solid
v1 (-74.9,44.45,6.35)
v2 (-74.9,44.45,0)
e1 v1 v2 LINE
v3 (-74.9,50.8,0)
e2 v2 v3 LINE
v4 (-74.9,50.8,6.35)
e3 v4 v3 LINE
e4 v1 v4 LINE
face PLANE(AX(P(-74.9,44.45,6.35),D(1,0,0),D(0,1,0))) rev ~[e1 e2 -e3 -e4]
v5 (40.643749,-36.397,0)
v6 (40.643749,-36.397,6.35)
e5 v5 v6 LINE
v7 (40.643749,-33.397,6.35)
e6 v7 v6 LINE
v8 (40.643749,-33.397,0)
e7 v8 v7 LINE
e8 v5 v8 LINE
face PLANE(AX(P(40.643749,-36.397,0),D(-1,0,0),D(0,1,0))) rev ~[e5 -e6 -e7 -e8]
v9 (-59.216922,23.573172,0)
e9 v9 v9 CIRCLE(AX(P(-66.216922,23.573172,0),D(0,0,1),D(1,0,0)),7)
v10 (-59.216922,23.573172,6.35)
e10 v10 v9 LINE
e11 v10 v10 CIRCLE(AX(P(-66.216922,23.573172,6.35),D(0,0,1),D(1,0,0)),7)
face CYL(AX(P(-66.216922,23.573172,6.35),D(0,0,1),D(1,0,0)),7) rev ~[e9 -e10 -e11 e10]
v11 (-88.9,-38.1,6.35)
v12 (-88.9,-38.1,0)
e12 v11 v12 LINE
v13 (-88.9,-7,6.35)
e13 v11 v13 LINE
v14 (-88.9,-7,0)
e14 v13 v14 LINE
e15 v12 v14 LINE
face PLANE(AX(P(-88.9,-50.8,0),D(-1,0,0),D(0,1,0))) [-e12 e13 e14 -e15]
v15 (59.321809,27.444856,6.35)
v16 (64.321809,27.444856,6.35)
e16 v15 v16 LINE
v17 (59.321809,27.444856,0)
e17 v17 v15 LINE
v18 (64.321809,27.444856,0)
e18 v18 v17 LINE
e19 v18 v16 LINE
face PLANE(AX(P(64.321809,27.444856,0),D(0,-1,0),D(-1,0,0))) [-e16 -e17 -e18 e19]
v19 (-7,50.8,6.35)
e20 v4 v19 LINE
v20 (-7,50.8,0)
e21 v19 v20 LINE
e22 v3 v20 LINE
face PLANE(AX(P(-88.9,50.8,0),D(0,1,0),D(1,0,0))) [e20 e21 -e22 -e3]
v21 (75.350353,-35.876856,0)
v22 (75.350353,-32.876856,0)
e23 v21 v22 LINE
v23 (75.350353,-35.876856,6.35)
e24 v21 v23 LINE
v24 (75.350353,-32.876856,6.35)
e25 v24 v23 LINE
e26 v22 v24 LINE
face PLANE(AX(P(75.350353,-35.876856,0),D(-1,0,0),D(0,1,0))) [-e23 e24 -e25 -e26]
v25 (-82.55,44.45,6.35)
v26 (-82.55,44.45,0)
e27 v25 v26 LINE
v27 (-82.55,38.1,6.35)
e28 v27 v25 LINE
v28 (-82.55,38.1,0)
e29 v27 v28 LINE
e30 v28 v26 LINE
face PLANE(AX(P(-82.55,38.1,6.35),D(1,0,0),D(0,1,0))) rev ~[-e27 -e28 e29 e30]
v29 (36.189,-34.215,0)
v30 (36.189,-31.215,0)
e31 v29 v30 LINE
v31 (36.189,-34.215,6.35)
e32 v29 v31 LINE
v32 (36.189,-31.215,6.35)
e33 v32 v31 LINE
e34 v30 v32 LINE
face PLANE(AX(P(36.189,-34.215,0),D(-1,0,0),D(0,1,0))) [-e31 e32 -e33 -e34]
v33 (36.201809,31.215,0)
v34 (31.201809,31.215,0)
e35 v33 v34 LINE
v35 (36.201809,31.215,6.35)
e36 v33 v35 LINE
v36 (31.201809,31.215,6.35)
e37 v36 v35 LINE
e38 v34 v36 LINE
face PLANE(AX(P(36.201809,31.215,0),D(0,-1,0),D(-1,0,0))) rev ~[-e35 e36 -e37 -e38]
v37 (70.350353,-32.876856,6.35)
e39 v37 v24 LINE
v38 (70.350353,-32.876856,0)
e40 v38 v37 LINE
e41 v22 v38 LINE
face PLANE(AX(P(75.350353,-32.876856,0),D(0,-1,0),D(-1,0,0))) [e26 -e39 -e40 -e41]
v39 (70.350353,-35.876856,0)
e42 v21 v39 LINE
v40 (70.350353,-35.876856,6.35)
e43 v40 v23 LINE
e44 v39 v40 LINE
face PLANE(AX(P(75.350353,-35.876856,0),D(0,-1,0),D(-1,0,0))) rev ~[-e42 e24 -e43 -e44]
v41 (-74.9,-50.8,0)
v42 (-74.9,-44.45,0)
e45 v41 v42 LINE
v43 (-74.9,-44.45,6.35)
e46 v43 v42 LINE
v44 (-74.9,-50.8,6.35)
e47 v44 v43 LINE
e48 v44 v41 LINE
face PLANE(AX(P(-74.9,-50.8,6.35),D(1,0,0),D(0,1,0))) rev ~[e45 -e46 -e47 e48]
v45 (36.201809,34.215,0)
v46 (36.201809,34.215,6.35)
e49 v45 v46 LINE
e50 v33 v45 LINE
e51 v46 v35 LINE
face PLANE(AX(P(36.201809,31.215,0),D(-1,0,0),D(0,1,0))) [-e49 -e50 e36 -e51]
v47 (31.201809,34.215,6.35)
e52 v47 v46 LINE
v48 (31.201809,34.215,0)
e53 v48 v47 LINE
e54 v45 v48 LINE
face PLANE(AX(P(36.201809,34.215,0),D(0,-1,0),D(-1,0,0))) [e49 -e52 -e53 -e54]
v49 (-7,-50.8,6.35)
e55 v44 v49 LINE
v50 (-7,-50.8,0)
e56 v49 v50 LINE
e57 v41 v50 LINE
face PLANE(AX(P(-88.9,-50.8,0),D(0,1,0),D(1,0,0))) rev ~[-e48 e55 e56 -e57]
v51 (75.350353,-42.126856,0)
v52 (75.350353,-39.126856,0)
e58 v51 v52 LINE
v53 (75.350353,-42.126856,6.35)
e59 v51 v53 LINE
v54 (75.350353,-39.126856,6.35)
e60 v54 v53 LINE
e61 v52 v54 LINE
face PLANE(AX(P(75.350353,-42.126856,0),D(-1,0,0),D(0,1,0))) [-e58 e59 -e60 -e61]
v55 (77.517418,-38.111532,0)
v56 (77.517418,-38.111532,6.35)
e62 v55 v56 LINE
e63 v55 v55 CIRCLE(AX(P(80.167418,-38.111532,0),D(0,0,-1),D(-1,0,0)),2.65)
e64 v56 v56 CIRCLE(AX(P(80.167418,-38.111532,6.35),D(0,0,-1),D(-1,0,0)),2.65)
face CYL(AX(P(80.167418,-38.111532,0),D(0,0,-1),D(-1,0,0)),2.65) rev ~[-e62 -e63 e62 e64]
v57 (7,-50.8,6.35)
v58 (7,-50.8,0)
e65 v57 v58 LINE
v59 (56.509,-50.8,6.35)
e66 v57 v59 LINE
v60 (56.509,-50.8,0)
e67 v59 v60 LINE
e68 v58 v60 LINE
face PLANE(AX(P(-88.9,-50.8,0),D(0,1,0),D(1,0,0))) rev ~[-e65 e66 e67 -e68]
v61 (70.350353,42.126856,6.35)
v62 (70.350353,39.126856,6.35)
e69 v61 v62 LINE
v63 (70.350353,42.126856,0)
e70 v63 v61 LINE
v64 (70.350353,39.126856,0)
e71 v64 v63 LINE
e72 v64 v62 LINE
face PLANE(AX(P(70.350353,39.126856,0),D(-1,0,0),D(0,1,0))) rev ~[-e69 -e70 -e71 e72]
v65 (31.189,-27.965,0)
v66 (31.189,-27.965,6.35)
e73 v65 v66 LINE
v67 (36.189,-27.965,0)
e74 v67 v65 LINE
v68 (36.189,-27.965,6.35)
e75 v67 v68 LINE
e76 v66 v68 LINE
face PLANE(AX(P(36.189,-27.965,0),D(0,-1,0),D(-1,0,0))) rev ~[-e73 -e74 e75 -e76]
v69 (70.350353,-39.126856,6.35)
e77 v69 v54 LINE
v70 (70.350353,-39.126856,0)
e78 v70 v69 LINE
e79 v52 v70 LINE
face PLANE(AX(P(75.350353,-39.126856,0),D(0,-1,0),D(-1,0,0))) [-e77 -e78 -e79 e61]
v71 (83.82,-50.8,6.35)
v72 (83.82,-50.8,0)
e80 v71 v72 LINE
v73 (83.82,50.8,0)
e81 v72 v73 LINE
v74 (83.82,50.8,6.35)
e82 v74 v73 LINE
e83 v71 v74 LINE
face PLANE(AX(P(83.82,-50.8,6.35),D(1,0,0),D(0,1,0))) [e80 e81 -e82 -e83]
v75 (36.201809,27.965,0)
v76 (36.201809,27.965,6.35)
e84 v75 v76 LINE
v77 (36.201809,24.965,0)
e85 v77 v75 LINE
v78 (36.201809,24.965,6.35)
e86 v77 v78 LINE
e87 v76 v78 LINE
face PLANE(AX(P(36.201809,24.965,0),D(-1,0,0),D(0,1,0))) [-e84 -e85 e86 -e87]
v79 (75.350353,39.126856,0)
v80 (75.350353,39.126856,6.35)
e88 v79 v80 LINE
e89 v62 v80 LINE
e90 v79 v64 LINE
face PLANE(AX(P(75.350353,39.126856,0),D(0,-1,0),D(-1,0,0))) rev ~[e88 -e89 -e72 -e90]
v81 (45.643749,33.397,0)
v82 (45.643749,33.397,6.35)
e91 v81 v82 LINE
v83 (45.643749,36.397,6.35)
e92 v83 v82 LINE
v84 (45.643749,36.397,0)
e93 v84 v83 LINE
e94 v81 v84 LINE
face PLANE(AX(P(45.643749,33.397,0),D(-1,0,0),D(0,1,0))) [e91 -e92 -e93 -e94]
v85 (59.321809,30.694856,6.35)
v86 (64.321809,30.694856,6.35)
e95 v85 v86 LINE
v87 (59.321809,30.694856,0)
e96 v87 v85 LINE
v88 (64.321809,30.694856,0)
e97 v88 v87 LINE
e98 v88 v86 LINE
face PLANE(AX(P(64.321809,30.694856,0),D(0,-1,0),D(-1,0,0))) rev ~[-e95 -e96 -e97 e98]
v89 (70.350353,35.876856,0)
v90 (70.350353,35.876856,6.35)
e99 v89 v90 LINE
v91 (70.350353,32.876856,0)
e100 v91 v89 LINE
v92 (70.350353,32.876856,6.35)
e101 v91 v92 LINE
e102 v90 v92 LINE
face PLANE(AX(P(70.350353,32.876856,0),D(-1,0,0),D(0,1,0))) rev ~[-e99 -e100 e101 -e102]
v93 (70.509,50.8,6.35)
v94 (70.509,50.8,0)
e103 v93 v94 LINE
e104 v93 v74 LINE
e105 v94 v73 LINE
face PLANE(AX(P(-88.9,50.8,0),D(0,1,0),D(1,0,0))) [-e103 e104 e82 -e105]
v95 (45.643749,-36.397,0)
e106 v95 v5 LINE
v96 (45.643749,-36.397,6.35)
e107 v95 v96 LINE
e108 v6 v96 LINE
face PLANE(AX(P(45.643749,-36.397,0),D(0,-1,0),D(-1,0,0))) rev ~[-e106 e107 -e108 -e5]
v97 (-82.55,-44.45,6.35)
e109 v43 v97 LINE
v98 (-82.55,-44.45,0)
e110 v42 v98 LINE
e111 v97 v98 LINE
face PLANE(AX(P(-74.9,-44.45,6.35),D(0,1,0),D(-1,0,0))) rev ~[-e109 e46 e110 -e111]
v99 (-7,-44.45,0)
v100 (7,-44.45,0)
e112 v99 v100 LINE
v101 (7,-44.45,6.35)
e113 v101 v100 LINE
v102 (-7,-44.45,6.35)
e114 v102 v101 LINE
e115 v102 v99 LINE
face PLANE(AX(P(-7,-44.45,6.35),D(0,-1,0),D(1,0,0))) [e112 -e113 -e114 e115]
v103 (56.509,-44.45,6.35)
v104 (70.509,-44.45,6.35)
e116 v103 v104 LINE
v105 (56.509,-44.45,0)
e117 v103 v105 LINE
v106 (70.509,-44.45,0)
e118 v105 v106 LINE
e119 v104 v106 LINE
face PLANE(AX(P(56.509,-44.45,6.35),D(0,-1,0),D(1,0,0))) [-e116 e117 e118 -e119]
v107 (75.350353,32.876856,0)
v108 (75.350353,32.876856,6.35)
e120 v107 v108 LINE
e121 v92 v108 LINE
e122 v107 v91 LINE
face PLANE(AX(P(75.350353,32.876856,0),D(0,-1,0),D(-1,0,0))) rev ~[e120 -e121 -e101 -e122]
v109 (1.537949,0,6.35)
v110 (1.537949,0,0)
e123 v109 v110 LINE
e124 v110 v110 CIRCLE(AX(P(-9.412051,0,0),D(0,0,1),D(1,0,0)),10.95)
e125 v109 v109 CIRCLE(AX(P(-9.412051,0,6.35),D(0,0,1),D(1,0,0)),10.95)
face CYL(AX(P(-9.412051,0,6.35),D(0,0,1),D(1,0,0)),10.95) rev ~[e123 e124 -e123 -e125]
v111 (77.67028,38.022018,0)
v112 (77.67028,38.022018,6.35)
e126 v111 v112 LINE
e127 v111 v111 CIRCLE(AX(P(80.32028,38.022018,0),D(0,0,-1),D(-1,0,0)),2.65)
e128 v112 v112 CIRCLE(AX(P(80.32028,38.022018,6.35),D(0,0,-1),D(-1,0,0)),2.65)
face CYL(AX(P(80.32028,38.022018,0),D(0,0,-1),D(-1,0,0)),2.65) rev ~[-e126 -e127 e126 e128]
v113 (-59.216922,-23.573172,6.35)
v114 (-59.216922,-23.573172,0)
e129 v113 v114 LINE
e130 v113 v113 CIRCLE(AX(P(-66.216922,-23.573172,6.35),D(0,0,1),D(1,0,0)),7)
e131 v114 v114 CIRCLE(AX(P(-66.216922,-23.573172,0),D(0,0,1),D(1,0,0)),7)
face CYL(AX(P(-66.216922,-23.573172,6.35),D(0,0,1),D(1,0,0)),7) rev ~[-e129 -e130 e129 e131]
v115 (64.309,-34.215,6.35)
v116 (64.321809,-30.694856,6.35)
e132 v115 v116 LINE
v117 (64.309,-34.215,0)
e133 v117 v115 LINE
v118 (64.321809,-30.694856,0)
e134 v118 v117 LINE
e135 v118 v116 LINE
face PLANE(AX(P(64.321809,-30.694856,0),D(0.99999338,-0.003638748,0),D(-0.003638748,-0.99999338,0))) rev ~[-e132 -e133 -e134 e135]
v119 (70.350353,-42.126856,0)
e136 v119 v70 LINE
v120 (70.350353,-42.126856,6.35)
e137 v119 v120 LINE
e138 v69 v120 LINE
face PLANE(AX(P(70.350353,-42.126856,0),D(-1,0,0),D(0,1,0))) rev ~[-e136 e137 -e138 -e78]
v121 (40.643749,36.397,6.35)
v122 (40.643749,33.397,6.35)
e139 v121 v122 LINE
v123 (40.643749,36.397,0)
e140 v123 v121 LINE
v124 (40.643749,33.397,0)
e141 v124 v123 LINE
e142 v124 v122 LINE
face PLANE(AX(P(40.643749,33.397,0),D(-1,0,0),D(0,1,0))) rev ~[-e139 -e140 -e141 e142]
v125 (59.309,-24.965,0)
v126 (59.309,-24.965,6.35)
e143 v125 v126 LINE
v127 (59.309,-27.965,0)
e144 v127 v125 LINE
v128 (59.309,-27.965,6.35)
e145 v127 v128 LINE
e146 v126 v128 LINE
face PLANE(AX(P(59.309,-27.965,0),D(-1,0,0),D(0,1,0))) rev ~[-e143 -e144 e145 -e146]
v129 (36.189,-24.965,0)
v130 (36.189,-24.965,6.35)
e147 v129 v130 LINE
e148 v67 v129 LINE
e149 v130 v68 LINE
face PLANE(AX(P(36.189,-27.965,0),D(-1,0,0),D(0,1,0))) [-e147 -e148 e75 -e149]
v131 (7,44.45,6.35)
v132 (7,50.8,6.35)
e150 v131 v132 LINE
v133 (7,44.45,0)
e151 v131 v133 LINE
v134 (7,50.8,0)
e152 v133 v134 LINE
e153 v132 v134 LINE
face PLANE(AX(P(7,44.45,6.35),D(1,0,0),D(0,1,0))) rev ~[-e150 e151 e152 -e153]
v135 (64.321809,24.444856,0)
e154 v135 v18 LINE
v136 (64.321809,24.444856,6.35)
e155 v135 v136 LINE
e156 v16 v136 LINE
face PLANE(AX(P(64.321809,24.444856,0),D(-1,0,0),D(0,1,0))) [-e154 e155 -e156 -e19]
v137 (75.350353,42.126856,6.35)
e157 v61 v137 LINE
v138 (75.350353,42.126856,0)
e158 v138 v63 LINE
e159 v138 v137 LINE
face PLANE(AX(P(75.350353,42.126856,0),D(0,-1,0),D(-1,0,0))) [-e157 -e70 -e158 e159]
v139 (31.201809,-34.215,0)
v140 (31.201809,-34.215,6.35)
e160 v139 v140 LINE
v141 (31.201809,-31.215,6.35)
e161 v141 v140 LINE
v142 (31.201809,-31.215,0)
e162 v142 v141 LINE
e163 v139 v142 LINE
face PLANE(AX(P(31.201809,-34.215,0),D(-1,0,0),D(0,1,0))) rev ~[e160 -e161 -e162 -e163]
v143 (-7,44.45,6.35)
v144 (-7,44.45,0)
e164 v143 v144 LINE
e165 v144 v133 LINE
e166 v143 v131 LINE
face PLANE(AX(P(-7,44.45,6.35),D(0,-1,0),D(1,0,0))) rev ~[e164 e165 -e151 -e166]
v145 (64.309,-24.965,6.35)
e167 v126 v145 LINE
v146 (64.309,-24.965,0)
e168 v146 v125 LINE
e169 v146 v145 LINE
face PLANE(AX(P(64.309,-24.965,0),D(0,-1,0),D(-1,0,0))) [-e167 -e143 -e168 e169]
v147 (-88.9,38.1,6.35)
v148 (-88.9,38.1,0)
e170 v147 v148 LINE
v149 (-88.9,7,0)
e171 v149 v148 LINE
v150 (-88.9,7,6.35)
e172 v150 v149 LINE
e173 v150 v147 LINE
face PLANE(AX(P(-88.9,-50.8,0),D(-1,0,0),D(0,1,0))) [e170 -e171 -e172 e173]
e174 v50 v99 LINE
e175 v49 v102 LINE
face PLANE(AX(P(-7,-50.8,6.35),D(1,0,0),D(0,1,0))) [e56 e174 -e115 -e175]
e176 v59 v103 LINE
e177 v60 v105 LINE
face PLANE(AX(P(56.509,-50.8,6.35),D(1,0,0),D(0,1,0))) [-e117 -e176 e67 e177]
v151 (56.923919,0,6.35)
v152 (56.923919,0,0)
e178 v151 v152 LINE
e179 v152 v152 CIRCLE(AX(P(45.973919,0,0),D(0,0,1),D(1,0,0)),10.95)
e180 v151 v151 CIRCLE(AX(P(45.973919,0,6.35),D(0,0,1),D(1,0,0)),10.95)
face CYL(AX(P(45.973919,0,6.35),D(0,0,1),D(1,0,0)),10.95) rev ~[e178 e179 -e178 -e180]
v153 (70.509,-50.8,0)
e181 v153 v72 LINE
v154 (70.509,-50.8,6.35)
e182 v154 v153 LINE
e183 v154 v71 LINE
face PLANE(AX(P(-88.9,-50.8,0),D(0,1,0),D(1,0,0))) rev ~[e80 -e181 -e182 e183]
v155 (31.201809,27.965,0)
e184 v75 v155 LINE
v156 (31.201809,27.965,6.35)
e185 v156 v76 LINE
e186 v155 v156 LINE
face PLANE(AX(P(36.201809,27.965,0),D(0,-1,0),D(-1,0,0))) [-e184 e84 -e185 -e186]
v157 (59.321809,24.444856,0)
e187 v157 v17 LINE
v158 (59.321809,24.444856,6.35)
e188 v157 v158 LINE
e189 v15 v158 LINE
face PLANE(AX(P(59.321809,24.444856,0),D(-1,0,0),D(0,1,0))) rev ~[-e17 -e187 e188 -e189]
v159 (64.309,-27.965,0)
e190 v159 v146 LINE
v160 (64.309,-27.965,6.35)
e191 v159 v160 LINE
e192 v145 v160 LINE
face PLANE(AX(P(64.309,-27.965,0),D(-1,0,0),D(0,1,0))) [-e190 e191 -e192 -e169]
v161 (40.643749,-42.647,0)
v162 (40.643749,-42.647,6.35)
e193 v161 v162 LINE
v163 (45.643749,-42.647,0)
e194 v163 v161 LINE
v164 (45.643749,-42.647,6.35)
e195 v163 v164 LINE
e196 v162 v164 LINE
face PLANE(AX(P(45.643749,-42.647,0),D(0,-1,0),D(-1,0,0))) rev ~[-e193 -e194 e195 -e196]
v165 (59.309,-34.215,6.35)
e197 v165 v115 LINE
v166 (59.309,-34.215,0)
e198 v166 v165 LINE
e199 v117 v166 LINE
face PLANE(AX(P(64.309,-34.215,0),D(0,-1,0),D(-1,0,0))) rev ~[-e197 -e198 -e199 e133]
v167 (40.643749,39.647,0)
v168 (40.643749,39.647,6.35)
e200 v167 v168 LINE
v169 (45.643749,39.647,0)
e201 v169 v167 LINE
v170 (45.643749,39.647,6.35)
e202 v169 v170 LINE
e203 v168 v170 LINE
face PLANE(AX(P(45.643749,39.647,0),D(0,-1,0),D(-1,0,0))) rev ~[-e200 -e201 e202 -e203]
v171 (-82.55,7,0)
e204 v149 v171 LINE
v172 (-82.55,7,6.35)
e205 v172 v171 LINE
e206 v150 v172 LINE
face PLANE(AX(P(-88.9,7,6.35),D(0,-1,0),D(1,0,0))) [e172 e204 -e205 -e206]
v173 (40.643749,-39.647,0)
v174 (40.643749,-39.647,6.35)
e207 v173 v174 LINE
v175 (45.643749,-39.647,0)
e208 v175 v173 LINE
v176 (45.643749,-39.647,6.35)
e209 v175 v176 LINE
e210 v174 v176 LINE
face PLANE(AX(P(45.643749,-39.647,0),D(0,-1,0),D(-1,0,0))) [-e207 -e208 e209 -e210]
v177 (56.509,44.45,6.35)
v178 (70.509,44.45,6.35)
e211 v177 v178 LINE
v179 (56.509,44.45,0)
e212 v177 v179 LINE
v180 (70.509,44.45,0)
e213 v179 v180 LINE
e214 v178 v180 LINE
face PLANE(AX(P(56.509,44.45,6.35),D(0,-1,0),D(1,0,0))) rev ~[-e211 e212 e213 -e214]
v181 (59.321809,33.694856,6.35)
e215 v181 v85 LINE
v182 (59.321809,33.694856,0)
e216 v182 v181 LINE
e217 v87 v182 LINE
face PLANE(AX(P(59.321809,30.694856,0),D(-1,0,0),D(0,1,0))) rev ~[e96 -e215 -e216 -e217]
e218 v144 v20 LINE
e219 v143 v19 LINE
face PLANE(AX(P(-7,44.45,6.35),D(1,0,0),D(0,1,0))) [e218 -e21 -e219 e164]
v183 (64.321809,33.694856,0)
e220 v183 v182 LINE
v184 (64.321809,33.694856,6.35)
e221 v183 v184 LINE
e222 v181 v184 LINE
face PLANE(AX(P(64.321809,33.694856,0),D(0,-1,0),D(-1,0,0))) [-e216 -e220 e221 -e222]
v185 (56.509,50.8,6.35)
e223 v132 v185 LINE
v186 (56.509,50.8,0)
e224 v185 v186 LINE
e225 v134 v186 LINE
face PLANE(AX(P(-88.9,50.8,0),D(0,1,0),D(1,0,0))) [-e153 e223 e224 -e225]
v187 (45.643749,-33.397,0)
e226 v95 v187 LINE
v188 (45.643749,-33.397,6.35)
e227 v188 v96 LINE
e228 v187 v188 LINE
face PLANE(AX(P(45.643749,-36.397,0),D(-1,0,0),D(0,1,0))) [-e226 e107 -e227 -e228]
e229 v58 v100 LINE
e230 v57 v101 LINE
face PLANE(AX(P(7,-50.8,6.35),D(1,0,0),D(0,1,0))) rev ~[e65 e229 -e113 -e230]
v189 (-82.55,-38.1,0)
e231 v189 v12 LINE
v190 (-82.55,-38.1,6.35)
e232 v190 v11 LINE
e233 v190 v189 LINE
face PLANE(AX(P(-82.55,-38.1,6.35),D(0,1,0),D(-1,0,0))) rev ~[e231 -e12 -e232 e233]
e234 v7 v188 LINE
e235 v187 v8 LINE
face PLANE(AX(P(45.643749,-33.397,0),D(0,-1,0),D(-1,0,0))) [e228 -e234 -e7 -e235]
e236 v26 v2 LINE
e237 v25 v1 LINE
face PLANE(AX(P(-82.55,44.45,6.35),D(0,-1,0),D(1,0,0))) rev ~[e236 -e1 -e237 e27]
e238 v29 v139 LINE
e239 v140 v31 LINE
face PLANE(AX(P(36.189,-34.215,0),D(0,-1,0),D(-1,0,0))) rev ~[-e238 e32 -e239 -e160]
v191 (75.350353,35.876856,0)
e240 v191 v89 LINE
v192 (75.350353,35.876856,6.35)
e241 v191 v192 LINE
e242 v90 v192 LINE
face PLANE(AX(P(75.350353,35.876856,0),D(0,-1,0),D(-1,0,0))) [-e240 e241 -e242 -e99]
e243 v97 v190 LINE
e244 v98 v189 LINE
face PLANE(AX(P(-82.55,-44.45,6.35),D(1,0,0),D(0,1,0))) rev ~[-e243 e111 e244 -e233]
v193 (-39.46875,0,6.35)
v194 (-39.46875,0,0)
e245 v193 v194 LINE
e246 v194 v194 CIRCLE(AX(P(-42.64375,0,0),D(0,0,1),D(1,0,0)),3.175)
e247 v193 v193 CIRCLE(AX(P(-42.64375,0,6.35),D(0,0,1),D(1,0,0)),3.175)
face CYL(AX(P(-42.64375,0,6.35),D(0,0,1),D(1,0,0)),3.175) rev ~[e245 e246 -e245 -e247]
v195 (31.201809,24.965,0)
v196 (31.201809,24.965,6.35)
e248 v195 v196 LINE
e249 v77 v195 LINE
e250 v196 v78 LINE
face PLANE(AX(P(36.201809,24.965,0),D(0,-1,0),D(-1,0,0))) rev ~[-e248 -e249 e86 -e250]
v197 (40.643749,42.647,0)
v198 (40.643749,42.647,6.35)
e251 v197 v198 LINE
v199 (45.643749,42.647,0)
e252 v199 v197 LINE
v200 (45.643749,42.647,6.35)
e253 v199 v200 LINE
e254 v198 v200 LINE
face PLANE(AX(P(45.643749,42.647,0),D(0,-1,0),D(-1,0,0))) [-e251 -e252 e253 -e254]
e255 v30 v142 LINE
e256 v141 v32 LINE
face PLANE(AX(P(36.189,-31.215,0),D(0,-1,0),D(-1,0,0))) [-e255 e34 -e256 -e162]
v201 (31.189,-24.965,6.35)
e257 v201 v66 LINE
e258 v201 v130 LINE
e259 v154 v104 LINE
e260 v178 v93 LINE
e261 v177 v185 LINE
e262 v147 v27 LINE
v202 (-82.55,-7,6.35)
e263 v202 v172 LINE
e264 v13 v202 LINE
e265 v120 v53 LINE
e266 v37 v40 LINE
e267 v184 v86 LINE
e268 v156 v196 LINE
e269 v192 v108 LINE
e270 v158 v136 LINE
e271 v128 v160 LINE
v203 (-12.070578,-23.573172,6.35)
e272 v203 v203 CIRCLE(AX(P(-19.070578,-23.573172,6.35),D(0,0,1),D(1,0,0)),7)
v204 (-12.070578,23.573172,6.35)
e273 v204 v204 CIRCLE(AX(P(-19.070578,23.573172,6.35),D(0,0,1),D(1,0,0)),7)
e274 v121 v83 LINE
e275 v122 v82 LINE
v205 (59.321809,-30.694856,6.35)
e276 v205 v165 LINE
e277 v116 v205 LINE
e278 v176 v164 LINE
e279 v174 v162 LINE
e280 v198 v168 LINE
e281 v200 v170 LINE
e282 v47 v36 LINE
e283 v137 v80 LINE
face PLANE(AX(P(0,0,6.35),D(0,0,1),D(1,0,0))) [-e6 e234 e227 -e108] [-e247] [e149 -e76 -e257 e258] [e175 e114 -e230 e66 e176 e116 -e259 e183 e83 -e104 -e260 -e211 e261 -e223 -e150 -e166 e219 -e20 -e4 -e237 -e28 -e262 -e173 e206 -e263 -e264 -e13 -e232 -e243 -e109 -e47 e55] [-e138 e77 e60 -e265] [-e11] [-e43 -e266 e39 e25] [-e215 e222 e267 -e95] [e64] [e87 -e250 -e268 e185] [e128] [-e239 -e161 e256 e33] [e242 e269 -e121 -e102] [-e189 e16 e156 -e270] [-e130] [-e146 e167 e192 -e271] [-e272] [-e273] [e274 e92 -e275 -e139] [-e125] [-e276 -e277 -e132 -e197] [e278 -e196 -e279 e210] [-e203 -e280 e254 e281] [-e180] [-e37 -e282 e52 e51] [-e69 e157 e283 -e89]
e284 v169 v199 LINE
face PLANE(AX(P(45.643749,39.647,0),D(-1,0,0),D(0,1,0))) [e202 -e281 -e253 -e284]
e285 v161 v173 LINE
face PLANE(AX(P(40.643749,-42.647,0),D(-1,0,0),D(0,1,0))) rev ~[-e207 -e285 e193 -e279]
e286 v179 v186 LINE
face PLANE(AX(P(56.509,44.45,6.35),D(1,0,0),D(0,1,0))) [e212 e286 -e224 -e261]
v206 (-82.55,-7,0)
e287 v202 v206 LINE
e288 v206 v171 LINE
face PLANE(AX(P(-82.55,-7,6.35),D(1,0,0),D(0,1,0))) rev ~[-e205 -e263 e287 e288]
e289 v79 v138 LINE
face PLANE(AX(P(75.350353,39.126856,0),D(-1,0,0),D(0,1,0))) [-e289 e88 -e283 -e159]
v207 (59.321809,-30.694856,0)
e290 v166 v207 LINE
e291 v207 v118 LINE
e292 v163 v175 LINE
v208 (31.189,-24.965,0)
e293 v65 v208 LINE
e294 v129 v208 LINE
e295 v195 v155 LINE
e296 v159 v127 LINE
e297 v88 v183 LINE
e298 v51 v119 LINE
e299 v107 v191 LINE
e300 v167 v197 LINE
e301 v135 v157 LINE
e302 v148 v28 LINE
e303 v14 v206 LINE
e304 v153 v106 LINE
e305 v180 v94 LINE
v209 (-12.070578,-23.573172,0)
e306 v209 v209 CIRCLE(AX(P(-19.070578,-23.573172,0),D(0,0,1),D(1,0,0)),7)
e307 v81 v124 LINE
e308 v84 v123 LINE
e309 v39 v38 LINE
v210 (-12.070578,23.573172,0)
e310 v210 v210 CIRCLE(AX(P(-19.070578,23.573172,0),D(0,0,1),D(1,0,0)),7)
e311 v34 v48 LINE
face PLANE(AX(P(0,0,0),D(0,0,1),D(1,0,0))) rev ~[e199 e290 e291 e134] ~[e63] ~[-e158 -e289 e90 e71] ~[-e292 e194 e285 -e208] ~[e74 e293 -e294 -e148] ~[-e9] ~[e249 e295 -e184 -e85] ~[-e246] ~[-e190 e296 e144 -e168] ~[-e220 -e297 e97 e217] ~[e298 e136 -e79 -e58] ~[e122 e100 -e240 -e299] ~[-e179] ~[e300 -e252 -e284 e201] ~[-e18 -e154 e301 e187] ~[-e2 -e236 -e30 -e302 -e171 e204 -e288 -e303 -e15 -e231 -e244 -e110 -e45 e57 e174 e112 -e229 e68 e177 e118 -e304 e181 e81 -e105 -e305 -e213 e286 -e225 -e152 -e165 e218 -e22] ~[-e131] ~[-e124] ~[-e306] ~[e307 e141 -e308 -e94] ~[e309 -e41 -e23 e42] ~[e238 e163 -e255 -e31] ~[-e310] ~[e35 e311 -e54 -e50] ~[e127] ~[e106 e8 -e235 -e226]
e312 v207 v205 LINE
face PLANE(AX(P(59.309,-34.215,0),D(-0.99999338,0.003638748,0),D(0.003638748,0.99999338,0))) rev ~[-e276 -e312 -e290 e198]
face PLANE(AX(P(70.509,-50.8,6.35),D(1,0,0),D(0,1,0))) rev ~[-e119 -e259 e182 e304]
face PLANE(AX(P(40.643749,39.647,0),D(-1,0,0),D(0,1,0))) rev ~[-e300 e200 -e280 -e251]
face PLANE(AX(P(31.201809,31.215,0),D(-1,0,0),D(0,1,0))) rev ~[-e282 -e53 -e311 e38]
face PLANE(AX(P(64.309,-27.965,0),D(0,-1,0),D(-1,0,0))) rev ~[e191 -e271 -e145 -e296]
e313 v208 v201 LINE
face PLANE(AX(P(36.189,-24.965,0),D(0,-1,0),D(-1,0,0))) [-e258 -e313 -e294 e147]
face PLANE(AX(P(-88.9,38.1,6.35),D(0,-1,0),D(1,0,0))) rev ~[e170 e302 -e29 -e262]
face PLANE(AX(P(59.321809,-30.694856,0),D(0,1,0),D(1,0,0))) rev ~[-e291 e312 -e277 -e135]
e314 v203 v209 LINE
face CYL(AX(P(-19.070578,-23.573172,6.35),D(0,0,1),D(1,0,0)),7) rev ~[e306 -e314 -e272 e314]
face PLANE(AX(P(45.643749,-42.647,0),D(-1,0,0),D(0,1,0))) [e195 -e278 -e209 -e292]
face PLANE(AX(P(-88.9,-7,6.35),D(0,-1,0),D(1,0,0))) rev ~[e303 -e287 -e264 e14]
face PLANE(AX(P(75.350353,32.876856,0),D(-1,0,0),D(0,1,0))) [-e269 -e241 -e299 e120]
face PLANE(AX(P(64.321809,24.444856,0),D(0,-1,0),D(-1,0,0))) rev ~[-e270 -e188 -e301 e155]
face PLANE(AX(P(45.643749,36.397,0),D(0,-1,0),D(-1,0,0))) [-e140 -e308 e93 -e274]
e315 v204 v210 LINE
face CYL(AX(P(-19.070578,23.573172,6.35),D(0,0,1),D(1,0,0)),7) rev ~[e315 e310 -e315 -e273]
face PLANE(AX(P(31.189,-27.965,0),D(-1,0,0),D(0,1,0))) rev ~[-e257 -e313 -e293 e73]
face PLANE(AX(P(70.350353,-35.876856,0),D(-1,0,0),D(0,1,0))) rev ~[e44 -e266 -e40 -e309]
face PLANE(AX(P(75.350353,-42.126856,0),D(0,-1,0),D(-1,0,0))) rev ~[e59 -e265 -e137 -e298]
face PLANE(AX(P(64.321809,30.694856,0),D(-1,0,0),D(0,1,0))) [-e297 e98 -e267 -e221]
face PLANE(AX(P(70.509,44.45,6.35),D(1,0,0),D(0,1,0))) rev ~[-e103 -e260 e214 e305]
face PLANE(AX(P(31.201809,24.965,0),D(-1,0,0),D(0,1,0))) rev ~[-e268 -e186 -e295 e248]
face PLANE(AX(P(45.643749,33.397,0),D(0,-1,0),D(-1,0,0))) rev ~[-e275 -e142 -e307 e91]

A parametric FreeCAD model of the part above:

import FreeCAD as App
import Part
import Sketcher

doc = App.newDocument("Part")
params = doc.addObject("Spreadsheet::Sheet", "Params")
for row, (alias, value) in enumerate([
    ("sketch1_width", "177.8 mm"),
    ("sketch1_height", "101.6 mm"),
    ("pad1_length", "6.35 mm"),
    ("sketch2_diameter", "14 mm"),
    ("sketch2_diameter2", "21.9 mm"),
    ("sketch2_diameter3", "6.35 mm"),
    ("sketch3_width", "14 mm"),
    ("sketch3_height", "12.7 mm"),
    ("sketch3_height2", "101.6 mm"),
    ("sketch3_width2", "5.08 mm"),
    ("sketch4_diameter", "5.3 mm"),
    ("sketch4_width", "5 mm"),
    ("sketch4_height", "3 mm"),
], start=1):
    params.set(f"A{row}", alias)
    params.set(f"B{row}", "=" + value)
    params.setAlias(f"B{row}", alias)

body = doc.addObject("PartDesign::Body", "Body")

sketch1 = body.newObject("Sketcher::SketchObject", "Sketch")
sketch1.AttachmentSupport = (doc.getObject("XY_Plane"), [""])
sketch1.MapMode = "FlatFace"
sketch1.addGeometry([
    Part.LineSegment(App.Vector(-89, 51, 0), App.Vector(-89, -51, 0)),
    Part.LineSegment(App.Vector(-89, -51, 0), App.Vector(89, -51, 0)),
    Part.LineSegment(App.Vector(89, -51, 0), App.Vector(89, 51, 0)),
    Part.LineSegment(App.Vector(89, 51, 0), App.Vector(-89, 51, 0)),
], False)
sketch1.addConstraint([
    Sketcher.Constraint("Coincident", 0, 2, 1, 1),
    Sketcher.Constraint("Coincident", 1, 2, 2, 1),
    Sketcher.Constraint("Coincident", 2, 2, 3, 1),
    Sketcher.Constraint("Coincident", 3, 2, 0, 1),
    Sketcher.Constraint("Vertical", 0),
    Sketcher.Constraint("Horizontal", 1),
    Sketcher.Constraint("Vertical", 2),
    Sketcher.Constraint("Horizontal", 3),
    Sketcher.Constraint("Symmetric", 0, 2, 2, 2, -1, 1),
    Sketcher.Constraint("DistanceX", 1, 1, 1, 2, 177.8),
    Sketcher.Constraint("DistanceY", 0, 2, 0, 1, 101.6),
])
sketch1.setExpression("Constraints[9]", "Params.sketch1_width")
sketch1.setExpression("Constraints[10]", "Params.sketch1_height")
pad1 = body.newObject("PartDesign::Pad", "Pad")
pad1.Profile = sketch1
pad1.setExpression("Length", "Params.pad1_length")

sketch2 = body.newObject("Sketcher::SketchObject", "Sketch001")
sketch2.AttachmentSupport = (doc.getObject("XY_Plane"), [""])
sketch2.MapMode = "FlatFace"
sketch2.AttachmentOffset = App.Placement(App.Vector(0, 0, 6.35), App.Rotation())
sketch2.addGeometry([
    Part.Circle(App.Vector(-9.4, 0, 0), App.Vector(0, 0, 1), 10.9),
    Part.Circle(App.Vector(-42.6, 0, 0), App.Vector(0, 0, 1), 3.2),
    Part.Circle(App.Vector(-66.2, 23.6, 0), App.Vector(0, 0, 1), 7),
    Part.Circle(App.Vector(-19.1, 23.6, 0), App.Vector(0, 0, 1), 7),
    Part.Circle(App.Vector(-66.2, -23.6, 0), App.Vector(0, 0, 1), 7),
    Part.Circle(App.Vector(-19.1, -23.6, 0), App.Vector(0, 0, 1), 7),
    Part.Circle(App.Vector(46, 0, 0), App.Vector(0, 0, 1), 10.9),
], False)
sketch2.addConstraint([
    Sketcher.Constraint("Equal", 2, 3),
    Sketcher.Constraint("Equal", 3, 4),
    Sketcher.Constraint("Equal", 4, 5),
    Sketcher.Constraint("Equal", 0, 6),
    Sketcher.Constraint("Symmetric", 2, 3, 4, 3, -1),
    Sketcher.Constraint("Symmetric", 3, 3, 5, 3, -1),
    Sketcher.Constraint("PointOnObject", 0, 3, -1),
    Sketcher.Constraint("PointOnObject", 1, 3, -1),
    Sketcher.Constraint("PointOnObject", 6, 3, -1),
    Sketcher.Constraint("Horizontal", 2, 3, 3, 3),
    Sketcher.Constraint("Diameter", 2, 14.0),
    Sketcher.Constraint("Diameter", 0, 21.9),
    Sketcher.Constraint("Diameter", 1, 6.35),
    Sketcher.Constraint("DistanceX", 1, 3, 0, 3, 33.231699),
    Sketcher.Constraint("DistanceX", 0, 3, -1, 1, 9.412051),
    Sketcher.Constraint("DistanceX", -1, 1, 6, 3, 45.973919),
    Sketcher.Constraint("DistanceX", 2, 3, 0, 3, 56.804872),
    Sketcher.Constraint("DistanceY", -1, 1, 2, 3, 23.573172),
    Sketcher.Constraint("DistanceX", 3, 3, -1, 1, 19.070578),
])
sketch2.setExpression("Constraints[10]", "Params.sketch2_diameter")
sketch2.setExpression("Constraints[11]", "Params.sketch2_diameter2")
sketch2.setExpression("Constraints[12]", "Params.sketch2_diameter3")
pocket1 = body.newObject("PartDesign::Pocket", "Pocket")
pocket1.Profile = sketch2
pocket1.Type = "ThroughAll"

sketch3 = body.newObject("Sketcher::SketchObject", "Sketch002")
sketch3.AttachmentSupport = (doc.getObject("XY_Plane"), [""])
sketch3.MapMode = "FlatFace"
sketch3.AttachmentOffset = App.Placement(App.Vector(0, 0, 6.35), App.Rotation())
sketch3.addGeometry([
    Part.LineSegment(App.Vector(57, -44, 0), App.Vector(57, -51, 0)),
    Part.LineSegment(App.Vector(57, -51, 0), App.Vector(71, -51, 0)),
    Part.LineSegment(App.Vector(71, -51, 0), App.Vector(71, -44, 0)),
    Part.LineSegment(App.Vector(71, -44, 0), App.Vector(57, -44, 0)),
    Part.LineSegment(App.Vector(57, 51, 0), App.Vector(57, 44, 0)),
    Part.LineSegment(App.Vector(57, 44, 0), App.Vector(71, 44, 0)),
    Part.LineSegment(App.Vector(71, 44, 0), App.Vector(71, 51, 0)),
    Part.LineSegment(App.Vector(71, 51, 0), App.Vector(57, 51, 0)),
    Part.LineSegment(App.Vector(-7, 51, 0), App.Vector(-7, 44, 0)),
    Part.LineSegment(App.Vector(-7, 44, 0), App.Vector(7, 44, 0)),
    Part.LineSegment(App.Vector(7, 44, 0), App.Vector(7, 51, 0)),
    Part.LineSegment(App.Vector(7, 51, 0), App.Vector(-7, 51, 0)),
    Part.LineSegment(App.Vector(-7, -44, 0), App.Vector(-7, -51, 0)),
    Part.LineSegment(App.Vector(-7, -51, 0), App.Vector(7, -51, 0)),
    Part.LineSegment(App.Vector(7, -51, 0), App.Vector(7, -44, 0)),
    Part.LineSegment(App.Vector(7, -44, 0), App.Vector(-7, -44, 0)),
    Part.LineSegment(App.Vector(-83, -38, 0), App.Vector(-89, -38, 0)),
    Part.LineSegment(App.Vector(-89, -38, 0), App.Vector(-89, -51, 0)),
    Part.LineSegment(App.Vector(-89, -51, 0), App.Vector(-75, -51, 0)),
    Part.LineSegment(App.Vector(-75, -51, 0), App.Vector(-75, -44, 0)),
    Part.LineSegment(App.Vector(-75, -44, 0), App.Vector(-83, -44, 0)),
    Part.LineSegment(App.Vector(-83, -44, 0), App.Vector(-83, -38, 0)),
    Part.LineSegment(App.Vector(-89, 7, 0), App.Vector(-89, -7, 0)),
    Part.LineSegment(App.Vector(-89, -7, 0), App.Vector(-83, -7, 0)),
    Part.LineSegment(App.Vector(-83, -7, 0), App.Vector(-83, 7, 0)),
    Part.LineSegment(App.Vector(-83, 7, 0), App.Vector(-89, 7, 0)),
    Part.LineSegment(App.Vector(-89, 38, 0), App.Vector(-83, 38, 0)),
    Part.LineSegment(App.Vector(-83, 38, 0), App.Vector(-83, 44, 0)),
    Part.LineSegment(App.Vector(-83, 44, 0), App.Vector(-75, 44, 0)),
    Part.LineSegment(App.Vector(-75, 44, 0), App.Vector(-75, 51, 0)),
    Part.LineSegment(App.Vector(-75, 51, 0), App.Vector(-89, 51, 0)),
    Part.LineSegment(App.Vector(-89, 51, 0), App.Vector(-89, 38, 0)),
    Part.LineSegment(App.Vector(84, 51, 0), App.Vector(84, -51, 0)),
    Part.LineSegment(App.Vector(84, -51, 0), App.Vector(89, -51, 0)),
    Part.LineSegment(App.Vector(89, -51, 0), App.Vector(89, 51, 0)),
    Part.LineSegment(App.Vector(89, 51, 0), App.Vector(84, 51, 0)),
], False)
sketch3.addConstraint([
    Sketcher.Constraint("Coincident", 0, 2, 1, 1),
    Sketcher.Constraint("Coincident", 1, 2, 2, 1),
    Sketcher.Constraint("Coincident", 2, 2, 3, 1),
    Sketcher.Constraint("Coincident", 3, 2, 0, 1),
    Sketcher.Constraint("Coincident", 4, 2, 5, 1),
    Sketcher.Constraint("Coincident", 5, 2, 6, 1),
    Sketcher.Constraint("Coincident", 6, 2, 7, 1),
    Sketcher.Constraint("Coincident", 7, 2, 4, 1),
    Sketcher.Constraint("Coincident", 8, 2, 9, 1),
    Sketcher.Constraint("Coincident", 9, 2, 10, 1),
    Sketcher.Constraint("Coincident", 10, 2, 11, 1),
    Sketcher.Constraint("Coincident", 11, 2, 8, 1),
    Sketcher.Constraint("Coincident", 12, 2, 13, 1),
    Sketcher.Constraint("Coincident", 13, 2, 14, 1),
    Sketcher.Constraint("Coincident", 14, 2, 15, 1),
    Sketcher.Constraint("Coincident", 15, 2, 12, 1),
    Sketcher.Constraint("Coincident", 16, 2, 17, 1),
    Sketcher.Constraint("Coincident", 17, 2, 18, 1),
    Sketcher.Constraint("Coincident", 18, 2, 19, 1),
    Sketcher.Constraint("Coincident", 19, 2, 20, 1),
    Sketcher.Constraint("Coincident", 20, 2, 21, 1),
    Sketcher.Constraint("Coincident", 21, 2, 16, 1),
    Sketcher.Constraint("Coincident", 22, 2, 23, 1),
    Sketcher.Constraint("Coincident", 23, 2, 24, 1),
    Sketcher.Constraint("Coincident", 24, 2, 25, 1),
    Sketcher.Constraint("Coincident", 25, 2, 22, 1),
    Sketcher.Constraint("Coincident", 26, 2, 27, 1),
    Sketcher.Constraint("Coincident", 27, 2, 28, 1),
    Sketcher.Constraint("Coincident", 28, 2, 29, 1),
    Sketcher.Constraint("Coincident", 29, 2, 30, 1),
    Sketcher.Constraint("Coincident", 30, 2, 31, 1),
    Sketcher.Constraint("Coincident", 31, 2, 26, 1),
    Sketcher.Constraint("Coincident", 32, 2, 33, 1),
    Sketcher.Constraint("Coincident", 33, 2, 34, 1),
    Sketcher.Constraint("Coincident", 34, 2, 35, 1),
    Sketcher.Constraint("Coincident", 35, 2, 32, 1),
    Sketcher.Constraint("Vertical", 0),
    Sketcher.Constraint("Horizontal", 1),
    Sketcher.Constraint("Vertical", 2),
    Sketcher.Constraint("Horizontal", 3),
    Sketcher.Constraint("Vertical", 4),
    Sketcher.Constraint("Horizontal", 5),
    Sketcher.Constraint("Vertical", 6),
    Sketcher.Constraint("Horizontal", 7),
    Sketcher.Constraint("Vertical", 8),
    Sketcher.Constraint("Horizontal", 9),
    Sketcher.Constraint("Vertical", 10),
    Sketcher.Constraint("Horizontal", 11),
    Sketcher.Constraint("Vertical", 12),
    Sketcher.Constraint("Horizontal", 13),
    Sketcher.Constraint("Vertical", 14),
    Sketcher.Constraint("Horizontal", 15),
    Sketcher.Constraint("Horizontal", 16),
    Sketcher.Constraint("Vertical", 17),
    Sketcher.Constraint("Horizontal", 18),
    Sketcher.Constraint("Vertical", 19),
    Sketcher.Constraint("Horizontal", 20),
    Sketcher.Constraint("Vertical", 21),
    Sketcher.Constraint("Vertical", 22),
    Sketcher.Constraint("Horizontal", 23),
    Sketcher.Constraint("Vertical", 24),
    Sketcher.Constraint("Horizontal", 25),
    Sketcher.Constraint("Horizontal", 26),
    Sketcher.Constraint("Vertical", 27),
    Sketcher.Constraint("Horizontal", 28),
    Sketcher.Constraint("Vertical", 29),
    Sketcher.Constraint("Horizontal", 30),
    Sketcher.Constraint("Vertical", 31),
    Sketcher.Constraint("Vertical", 32),
    Sketcher.Constraint("Horizontal", 33),
    Sketcher.Constraint("Vertical", 34),
    Sketcher.Constraint("Horizontal", 35),
    Sketcher.Constraint("Symmetric", 10, 2, 12, 2, -1, 1),
    Sketcher.Constraint("Symmetric", 8, 2, 14, 2, -1, 1),
    Sketcher.Constraint("Symmetric", 30, 2, 33, 2, -1, 1),
    Sketcher.Constraint("Symmetric", 17, 2, 34, 2, -1, 1),
    Sketcher.Constraint("Symmetric", 3, 2, 4, 2, -1),
    Sketcher.Constraint("Symmetric", 1, 2, 6, 2, -1),
    Sketcher.Constraint("Symmetric", 21, 2, 26, 2, -1),
    Sketcher.Constraint("Symmetric", 19, 2, 28, 2, -1),
    Sketcher.Constraint("Horizontal", 5, 2, 8, 2),
    Sketcher.Constraint("Horizontal", 7, 2, 10, 2),
    Sketcher.Constraint("Horizontal", 13, 2, 17, 2),
    Sketcher.Constraint("Horizontal", 15, 2, 19, 2),
    Sketcher.Constraint("Horizontal", 11, 2, 29, 2),
    Sketcher.Constraint("Vertical", 11, 2, 12, 2),
    Sketcher.Constraint("Vertical", 17, 2, 22, 2),
    Sketcher.Constraint("Vertical", 21, 2, 23, 2),
    Sketcher.Constraint("Equal", 7, 9),
    Sketcher.Constraint("Equal", 15, 18),
    Sketcher.Constraint("Equal", 26, 0),
    Sketcher.Constraint("Equal", 19, 21),
    Sketcher.Constraint("Equal", 30, 22),
    Sketcher.Constraint("DistanceX", 1, 1, 1, 2, 14.0),
    Sketcher.Constraint("DistanceY", 17, 2, 17, 1, 12.7),
    Sketcher.Constraint("DistanceY", 32, 2, 32, 1, 101.6),
    Sketcher.Constraint("DistanceY", 22, 2, -1, 1, 7.0),
    Sketcher.Constraint("DistanceX", 33, 1, 33, 2, 5.08),
    Sketcher.Constraint("DistanceX", 16, 2, -1, 1, 88.9),
    Sketcher.Constraint("DistanceX", -1, 1, 0, 2, 56.509),
])
sketch3.setExpression("Constraints[93]", "Params.sketch3_width")
sketch3.setExpression("Constraints[94]", "Params.sketch3_height")
sketch3.setExpression("Constraints[95]", "Params.sketch3_height2")
sketch3.setExpression("Constraints[97]", "Params.sketch3_width2")
pocket2 = body.newObject("PartDesign::Pocket", "Pocket001")
pocket2.Profile = sketch3
pocket2.Type = "ThroughAll"

sketch4 = body.newObject("Sketcher::SketchObject", "Sketch003")
sketch4.AttachmentSupport = (doc.getObject("XY_Plane"), [""])
sketch4.MapMode = "FlatFace"
sketch4.addGeometry([
    Part.LineSegment(App.Vector(64.3, -25, 0), App.Vector(64.3, -28, 0)),
    Part.LineSegment(App.Vector(64.3, -28, 0), App.Vector(59.3, -28, 0)),
    Part.LineSegment(App.Vector(59.3, -28, 0), App.Vector(59.3, -25, 0)),
    Part.LineSegment(App.Vector(59.3, -25, 0), App.Vector(64.3, -25, 0)),
    Part.LineSegment(App.Vector(59.3, -30.7, 0), App.Vector(64.3, -30.7, 0)),
    Part.LineSegment(App.Vector(64.3, -30.7, 0), App.Vector(64.3, -34.2, 0)),
    Part.LineSegment(App.Vector(64.3, -34.2, 0), App.Vector(59.3, -34.2, 0)),
    Part.LineSegment(App.Vector(59.3, -34.2, 0), App.Vector(59.3, -30.7, 0)),
    Part.LineSegment(App.Vector(36.2, -25, 0), App.Vector(36.2, -28, 0)),
    Part.LineSegment(App.Vector(36.2, -28, 0), App.Vector(31.2, -28, 0)),
    Part.LineSegment(App.Vector(31.2, -28, 0), App.Vector(31.2, -25, 0)),
    Part.LineSegment(App.Vector(31.2, -25, 0), App.Vector(36.2, -25, 0)),
    Part.LineSegment(App.Vector(45.6, -39.6, 0), App.Vector(45.6, -42.6, 0)),
    Part.LineSegment(App.Vector(45.6, -42.6, 0), App.Vector(40.6, -42.6, 0)),
    Part.LineSegment(App.Vector(40.6, -42.6, 0), App.Vector(40.6, -39.6, 0)),
    Part.LineSegment(App.Vector(40.6, -39.6, 0), App.Vector(45.6, -39.6, 0)),
    Part.LineSegment(App.Vector(45.6, -33.4, 0), App.Vector(45.6, -36.4, 0)),
    Part.LineSegment(App.Vector(45.6, -36.4, 0), App.Vector(40.6, -36.4, 0)),
    Part.LineSegment(App.Vector(40.6, -36.4, 0), App.Vector(40.6, -33.4, 0)),
    Part.LineSegment(App.Vector(40.6, -33.4, 0), App.Vector(45.6, -33.4, 0)),
    Part.LineSegment(App.Vector(36.2, -31.2, 0), App.Vector(36.2, -34.2, 0)),
    Part.LineSegment(App.Vector(36.2, -34.2, 0), App.Vector(31.2, -34.2, 0)),
    Part.LineSegment(App.Vector(31.2, -34.2, 0), App.Vector(31.2, -31.2, 0)),
    Part.LineSegment(App.Vector(31.2, -31.2, 0), App.Vector(36.2, -31.2, 0)),
    Part.LineSegment(App.Vector(45.6, 42.6, 0), App.Vector(45.6, 39.6, 0)),
    Part.LineSegment(App.Vector(45.6, 39.6, 0), App.Vector(40.6, 39.6, 0)),
    Part.LineSegment(App.Vector(40.6, 39.6, 0), App.Vector(40.6, 42.6, 0)),
    Part.LineSegment(App.Vector(40.6, 42.6, 0), App.Vector(45.6, 42.6, 0)),
    Part.LineSegment(App.Vector(45.6, 36.4, 0), App.Vector(45.6, 33.4, 0)),
    Part.LineSegment(App.Vector(45.6, 33.4, 0), App.Vector(40.6, 33.4, 0)),
    Part.LineSegment(App.Vector(40.6, 33.4, 0), App.Vector(40.6, 36.4, 0)),
    Part.LineSegment(App.Vector(40.6, 36.4, 0), App.Vector(45.6, 36.4, 0)),
    Part.LineSegment(App.Vector(36.2, 34.2, 0), App.Vector(36.2, 31.2, 0)),
    Part.LineSegment(App.Vector(36.2, 31.2, 0), App.Vector(31.2, 31.2, 0)),
    Part.LineSegment(App.Vector(31.2, 31.2, 0), App.Vector(31.2, 34.2, 0)),
    Part.LineSegment(App.Vector(31.2, 34.2, 0), App.Vector(36.2, 34.2, 0)),
    Part.LineSegment(App.Vector(36.2, 28, 0), App.Vector(36.2, 25, 0)),
    Part.LineSegment(App.Vector(36.2, 25, 0), App.Vector(31.2, 25, 0)),
    Part.LineSegment(App.Vector(31.2, 25, 0), App.Vector(31.2, 28, 0)),
    Part.LineSegment(App.Vector(31.2, 28, 0), App.Vector(36.2, 28, 0)),
    Part.LineSegment(App.Vector(75.4, 42.1, 0), App.Vector(75.4, 39.1, 0)),
    Part.LineSegment(App.Vector(75.4, 39.1, 0), App.Vector(70.4, 39.1, 0)),
    Part.LineSegment(App.Vector(70.4, 39.1, 0), App.Vector(70.4, 42.1, 0)),
    Part.LineSegment(App.Vector(70.4, 42.1, 0), App.Vector(75.4, 42.1, 0)),
    Part.LineSegment(App.Vector(75.4, 35.9, 0), App.Vector(75.4, 32.9, 0)),
    Part.LineSegment(App.Vector(75.4, 32.9, 0), App.Vector(70.4, 32.9, 0)),
    Part.LineSegment(App.Vector(70.4, 32.9, 0), App.Vector(70.4, 35.9, 0)),
    Part.LineSegment(App.Vector(70.4, 35.9, 0), App.Vector(75.4, 35.9, 0)),
    Part.LineSegment(App.Vector(64.3, 33.7, 0), App.Vector(64.3, 30.7, 0)),
    Part.LineSegment(App.Vector(64.3, 30.7, 0), App.Vector(59.3, 30.7, 0)),
    Part.LineSegment(App.Vector(59.3, 30.7, 0), App.Vector(59.3, 33.7, 0)),
    Part.LineSegment(App.Vector(59.3, 33.7, 0), App.Vector(64.3, 33.7, 0)),
    Part.LineSegment(App.Vector(64.3, 27.4, 0), App.Vector(64.3, 24.4, 0)),
    Part.LineSegment(App.Vector(64.3, 24.4, 0), App.Vector(59.3, 24.4, 0)),
    Part.LineSegment(App.Vector(59.3, 24.4, 0), App.Vector(59.3, 27.4, 0)),
    Part.LineSegment(App.Vector(59.3, 27.4, 0), App.Vector(64.3, 27.4, 0)),
    Part.LineSegment(App.Vector(75.4, -32.9, 0), App.Vector(75.4, -35.9, 0)),
    Part.LineSegment(App.Vector(75.4, -35.9, 0), App.Vector(70.4, -35.9, 0)),
    Part.LineSegment(App.Vector(70.4, -35.9, 0), App.Vector(70.4, -32.9, 0)),
    Part.LineSegment(App.Vector(70.4, -32.9, 0), App.Vector(75.4, -32.9, 0)),
    Part.LineSegment(App.Vector(75.4, -39.1, 0), App.Vector(75.4, -42.1, 0)),
    Part.LineSegment(App.Vector(75.4, -42.1, 0), App.Vector(70.4, -42.1, 0)),
    Part.LineSegment(App.Vector(70.4, -42.1, 0), App.Vector(70.4, -39.1, 0)),
    Part.LineSegment(App.Vector(70.4, -39.1, 0), App.Vector(75.4, -39.1, 0)),
    Part.Circle(App.Vector(80.3, 38, 0), App.Vector(0, 0, 1), 2.6),
    Part.Circle(App.Vector(80.2, -38.1, 0), App.Vector(0, 0, 1), 2.6),
], False)
sketch4.addConstraint([
    Sketcher.Constraint("Coincident", 0, 2, 1, 1),
    Sketcher.Constraint("Coincident", 1, 2, 2, 1),
    Sketcher.Constraint("Coincident", 2, 2, 3, 1),
    Sketcher.Constraint("Coincident", 3, 2, 0, 1),
    Sketcher.Constraint("Coincident", 4, 2, 5, 1),
    Sketcher.Constraint("Coincident", 5, 2, 6, 1),
    Sketcher.Constraint("Coincident", 6, 2, 7, 1),
    Sketcher.Constraint("Coincident", 7, 2, 4, 1),
    Sketcher.Constraint("Coincident", 8, 2, 9, 1),
    Sketcher.Constraint("Coincident", 9, 2, 10, 1),
    Sketcher.Constraint("Coincident", 10, 2, 11, 1),
    Sketcher.Constraint("Coincident", 11, 2, 8, 1),
    Sketcher.Constraint("Coincident", 12, 2, 13, 1),
    Sketcher.Constraint("Coincident", 13, 2, 14, 1),
    Sketcher.Constraint("Coincident", 14, 2, 15, 1),
    Sketcher.Constraint("Coincident", 15, 2, 12, 1),
    Sketcher.Constraint("Coincident", 16, 2, 17, 1),
    Sketcher.Constraint("Coincident", 17, 2, 18, 1),
    Sketcher.Constraint("Coincident", 18, 2, 19, 1),
    Sketcher.Constraint("Coincident", 19, 2, 16, 1),
    Sketcher.Constraint("Coincident", 20, 2, 21, 1),
    Sketcher.Constraint("Coincident", 21, 2, 22, 1),
    Sketcher.Constraint("Coincident", 22, 2, 23, 1),
    Sketcher.Constraint("Coincident", 23, 2, 20, 1),
    Sketcher.Constraint("Coincident", 24, 2, 25, 1),
    Sketcher.Constraint("Coincident", 25, 2, 26, 1),
    Sketcher.Constraint("Coincident", 26, 2, 27, 1),
    Sketcher.Constraint("Coincident", 27, 2, 24, 1),
    Sketcher.Constraint("Coincident", 28, 2, 29, 1),
    Sketcher.Constraint("Coincident", 29, 2, 30, 1),
    Sketcher.Constraint("Coincident", 30, 2, 31, 1),
    Sketcher.Constraint("Coincident", 31, 2, 28, 1),
    Sketcher.Constraint("Coincident", 32, 2, 33, 1),
    Sketcher.Constraint("Coincident", 33, 2, 34, 1),
    Sketcher.Constraint("Coincident", 34, 2, 35, 1),
    Sketcher.Constraint("Coincident", 35, 2, 32, 1),
    Sketcher.Constraint("Coincident", 36, 2, 37, 1),
    Sketcher.Constraint("Coincident", 37, 2, 38, 1),
    Sketcher.Constraint("Coincident", 38, 2, 39, 1),
    Sketcher.Constraint("Coincident", 39, 2, 36, 1),
    Sketcher.Constraint("Coincident", 40, 2, 41, 1),
    Sketcher.Constraint("Coincident", 41, 2, 42, 1),
    Sketcher.Constraint("Coincident", 42, 2, 43, 1),
    Sketcher.Constraint("Coincident", 43, 2, 40, 1),
    Sketcher.Constraint("Coincident", 44, 2, 45, 1),
    Sketcher.Constraint("Coincident", 45, 2, 46, 1),
    Sketcher.Constraint("Coincident", 46, 2, 47, 1),
    Sketcher.Constraint("Coincident", 47, 2, 44, 1),
    Sketcher.Constraint("Coincident", 48, 2, 49, 1),
    Sketcher.Constraint("Coincident", 49, 2, 50, 1),
    Sketcher.Constraint("Coincident", 50, 2, 51, 1),
    Sketcher.Constraint("Coincident", 51, 2, 48, 1),
    Sketcher.Constraint("Coincident", 52, 2, 53, 1),
    Sketcher.Constraint("Coincident", 53, 2, 54, 1),
    Sketcher.Constraint("Coincident", 54, 2, 55, 1),
    Sketcher.Constraint("Coincident", 55, 2, 52, 1),
    Sketcher.Constraint("Coincident", 56, 2, 57, 1),
    Sketcher.Constraint("Coincident", 57, 2, 58, 1),
    Sketcher.Constraint("Coincident", 58, 2, 59, 1),
    Sketcher.Constraint("Coincident", 59, 2, 56, 1),
    Sketcher.Constraint("Coincident", 60, 2, 61, 1),
    Sketcher.Constraint("Coincident", 61, 2, 62, 1),
    Sketcher.Constraint("Coincident", 62, 2, 63, 1),
    Sketcher.Constraint("Coincident", 63, 2, 60, 1),
    Sketcher.Constraint("Vertical", 0),
    Sketcher.Constraint("Horizontal", 1),
    Sketcher.Constraint("Vertical", 2),
    Sketcher.Constraint("Horizontal", 3),
    Sketcher.Constraint("Horizontal", 4),
    Sketcher.Constraint("Horizontal", 6),
    Sketcher.Constraint("Vertical", 8),
    Sketcher.Constraint("Horizontal", 9),
    Sketcher.Constraint("Vertical", 10),
    Sketcher.Constraint("Horizontal", 11),
    Sketcher.Constraint("Vertical", 12),
    Sketcher.Constraint("Horizontal", 13),
    Sketcher.Constraint("Vertical", 14),
    Sketcher.Constraint("Horizontal", 15),
    Sketcher.Constraint("Vertical", 16),
    Sketcher.Constraint("Horizontal", 17),
    Sketcher.Constraint("Vertical", 18),
    Sketcher.Constraint("Horizontal", 19),
    Sketcher.Constraint("Vertical", 20),
    Sketcher.Constraint("Horizontal", 21),
    Sketcher.Constraint("Vertical", 22),
    Sketcher.Constraint("Horizontal", 23),
    Sketcher.Constraint("Vertical", 24),
    Sketcher.Constraint("Horizontal", 25),
    Sketcher.Constraint("Vertical", 26),
    Sketcher.Constraint("Horizontal", 27),
    Sketcher.Constraint("Vertical", 28),
    Sketcher.Constraint("Horizontal", 29),
    Sketcher.Constraint("Vertical", 30),
    Sketcher.Constraint("Horizontal", 31),
    Sketcher.Constraint("Vertical", 32),
    Sketcher.Constraint("Horizontal", 33),
    Sketcher.Constraint("Vertical", 34),
    Sketcher.Constraint("Horizontal", 35),
    Sketcher.Constraint("Vertical", 36),
    Sketcher.Constraint("Horizontal", 37),
    Sketcher.Constraint("Vertical", 38),
    Sketcher.Constraint("Horizontal", 39),
    Sketcher.Constraint("Vertical", 40),
    Sketcher.Constraint("Horizontal", 41),
    Sketcher.Constraint("Vertical", 42),
    Sketcher.Constraint("Horizontal", 43),
    Sketcher.Constraint("Vertical", 44),
    Sketcher.Constraint("Horizontal", 45),
    Sketcher.Constraint("Vertical", 46),
    Sketcher.Constraint("Horizontal", 47),
    Sketcher.Constraint("Vertical", 48),
    Sketcher.Constraint("Horizontal", 49),
    Sketcher.Constraint("Vertical", 50),
    Sketcher.Constraint("Horizontal", 51),
    Sketcher.Constraint("Vertical", 52),
    Sketcher.Constraint("Horizontal", 53),
    Sketcher.Constraint("Vertical", 54),
    Sketcher.Constraint("Horizontal", 55),
    Sketcher.Constraint("Vertical", 56),
    Sketcher.Constraint("Horizontal", 57),
    Sketcher.Constraint("Vertical", 58),
    Sketcher.Constraint("Horizontal", 59),
    Sketcher.Constraint("Vertical", 60),
    Sketcher.Constraint("Horizontal", 61),
    Sketcher.Constraint("Vertical", 62),
    Sketcher.Constraint("Horizontal", 63),
    Sketcher.Constraint("Equal", 64, 65),
    Sketcher.Constraint("Symmetric", 15, 2, 24, 2, -1),
    Sketcher.Constraint("Symmetric", 13, 2, 26, 2, -1),
    Sketcher.Constraint("Symmetric", 19, 2, 28, 2, -1),
    Sketcher.Constraint("Symmetric", 17, 2, 30, 2, -1),
    Sketcher.Constraint("Symmetric", 22, 2, 33, 2, -1),
    Sketcher.Constraint("Symmetric", 4, 2, 48, 2, -1),
    Sketcher.Constraint("Symmetric", 47, 2, 56, 2, -1),
    Sketcher.Constraint("Symmetric", 45, 2, 58, 2, -1),
    Sketcher.Constraint("Symmetric", 43, 2, 60, 2, -1),
    Sketcher.Constraint("Symmetric", 41, 2, 62, 2, -1),
    Sketcher.Constraint("Parallel", 5, 7),
    Sketcher.Constraint("Horizontal", 1, 2, 8, 2),
    Sketcher.Constraint("Horizontal", 3, 2, 10, 2),
    Sketcher.Constraint("Horizontal", 6, 2, 20, 2),
    Sketcher.Constraint("Vertical", 3, 2, 5, 2),
    Sketcher.Constraint("Vertical", 2, 2, 6, 2),
    Sketcher.Constraint("Vertical", 15, 2, 16, 2),
    Sketcher.Constraint("Vertical", 14, 2, 17, 2),
    Sketcher.Constraint("Vertical", 11, 2, 20, 2),
    Sketcher.Constraint("Vertical", 35, 2, 36, 2),
    Sketcher.Constraint("Vertical", 34, 2, 37, 2),
    Sketcher.Constraint("Vertical", 43, 2, 44, 2),
    Sketcher.Constraint("Vertical", 42, 2, 45, 2),
    Sketcher.Constraint("Vertical", 7, 2, 49, 2),
    Sketcher.Constraint("Vertical", 51, 2, 52, 2),
    Sketcher.Constraint("Vertical", 50, 2, 53, 2),
    Sketcher.Constraint("Equal", 6, 9),
    Sketcher.Constraint("Equal", 11, 13),
    Sketcher.Constraint("Equal", 31, 33),
    Sketcher.Constraint("Equal", 39, 41),
    Sketcher.Constraint("Equal", 10, 12),
    Sketcher.Constraint("Equal", 14, 16),
    Sketcher.Constraint("Equal", 18, 20),
    Sketcher.Constraint("Equal", 30, 32),
    Sketcher.Constraint("Equal", 34, 36),
    Sketcher.Constraint("Equal", 38, 40),
    Sketcher.Constraint("Equal", 42, 44),
    Sketcher.Constraint("Equal", 46, 48),
    Sketcher.Constraint("Equal", 50, 52),
    Sketcher.Constraint("Diameter", 64, 5.3),
    Sketcher.Constraint("DistanceX", 1, 2, 1, 1, 5.0),
    Sketcher.Constraint("DistanceY", 0, 2, 0, 1, 3.0),
    Sketcher.Constraint("DistanceX", -1, 1, 0, 2, 64.309),
    Sketcher.Constraint("DistanceY", 0, 2, -1, 1, 27.965),
    Sketcher.Constraint("DistanceY", 5, 2, -1, 1, 34.215),
    Sketcher.Constraint("DistanceX", -1, 1, 8, 2, 36.189),
    Sketcher.Constraint("DistanceY", 12, 2, -1, 1, 42.647),
    Sketcher.Constraint("DistanceY", 16, 2, -1, 1, 36.397),
    Sketcher.Constraint("DistanceY", -1, 1, 36, 2, 24.965),
    Sketcher.Constraint("DistanceX", 21, 2, 21, 1, 4.987191),
    Sketcher.Constraint("DistanceX", -1, 1, 64, 3, 80.32028),
    Sketcher.Constraint("DistanceX", -1, 1, 4, 2, 64.321809),
    Sketcher.Constraint("DistanceX", -1, 1, 12, 2, 45.643749),
    Sketcher.Constraint("Distance", 5, 3.520168),
    Sketcher.Constraint("DistanceY", -1, 1, 64, 3, 38.022018),
    Sketcher.Constraint("DistanceX", -1, 1, 65, 3, 80.167418),
    Sketcher.Constraint("DistanceY", 65, 3, -1, 1, 38.111532),
    Sketcher.Constraint("DistanceX", -1, 1, 40, 2, 75.350353),
    Sketcher.Constraint("DistanceY", -1, 1, 40, 2, 39.126856),
    Sketcher.Constraint("DistanceY", -1, 1, 44, 2, 32.876856),
    Sketcher.Constraint("DistanceY", -1, 1, 52, 2, 24.444856),
])
sketch4.setExpression("Constraints[166]", "Params.sketch4_diameter")
sketch4.setExpression("Constraints[167]", "Params.sketch4_width")
sketch4.setExpression("Constraints[168]", "Params.sketch4_height")
pocket3 = body.newObject("PartDesign::Pocket", "Pocket002")
pocket3.Profile = sketch4
pocket3.Type = "ThroughAll"
pocket3.Reversed = True

doc.recompute()
